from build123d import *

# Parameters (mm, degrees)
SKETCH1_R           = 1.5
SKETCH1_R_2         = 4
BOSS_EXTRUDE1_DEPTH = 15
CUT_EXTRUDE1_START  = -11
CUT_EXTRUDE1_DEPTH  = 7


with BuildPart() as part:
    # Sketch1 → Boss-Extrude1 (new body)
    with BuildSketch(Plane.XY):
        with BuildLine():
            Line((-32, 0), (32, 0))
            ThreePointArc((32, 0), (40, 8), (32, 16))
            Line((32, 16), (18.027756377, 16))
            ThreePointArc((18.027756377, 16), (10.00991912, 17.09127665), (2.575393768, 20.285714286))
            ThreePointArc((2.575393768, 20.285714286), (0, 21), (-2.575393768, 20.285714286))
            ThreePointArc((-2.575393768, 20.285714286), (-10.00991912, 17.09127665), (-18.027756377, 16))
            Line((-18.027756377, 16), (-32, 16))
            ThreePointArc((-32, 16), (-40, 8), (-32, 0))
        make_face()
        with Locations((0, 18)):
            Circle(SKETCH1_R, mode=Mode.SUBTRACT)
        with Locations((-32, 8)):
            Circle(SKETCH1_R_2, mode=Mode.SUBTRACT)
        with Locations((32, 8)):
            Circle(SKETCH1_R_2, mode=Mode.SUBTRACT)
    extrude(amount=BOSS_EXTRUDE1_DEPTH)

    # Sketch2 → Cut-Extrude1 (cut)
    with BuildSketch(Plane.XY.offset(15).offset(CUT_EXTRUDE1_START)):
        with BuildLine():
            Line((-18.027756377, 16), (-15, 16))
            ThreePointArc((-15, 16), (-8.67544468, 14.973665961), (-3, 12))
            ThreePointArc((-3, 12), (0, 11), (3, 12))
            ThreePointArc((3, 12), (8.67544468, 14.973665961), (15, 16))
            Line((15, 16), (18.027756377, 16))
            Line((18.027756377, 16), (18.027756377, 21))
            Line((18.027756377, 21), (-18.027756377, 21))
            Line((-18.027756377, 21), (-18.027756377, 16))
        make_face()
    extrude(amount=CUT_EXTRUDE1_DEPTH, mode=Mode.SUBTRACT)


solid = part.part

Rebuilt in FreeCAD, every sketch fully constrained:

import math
import FreeCAD as App
import Part
import Sketcher
from FreeCAD import Vector

doc = App.newDocument("Part")
body = doc.addObject("PartDesign::Body", "Body")

sketch1 = body.newObject("Sketcher::SketchObject", "Sketch")
sketch1.AttachmentSupport = (doc.getObject("XY_Plane"), [""])
sketch1.MapMode = "FlatFace"
sketch1.addGeometry([
    Part.LineSegment(Vector(-32, 0, 0), Vector(32, 0, 0)),
    Part.ArcOfCircle(Part.Circle(Vector(32, 8, 0), Vector(0, 0, 1), 8), math.radians(-90), math.radians(90)),
    Part.LineSegment(Vector(32, 16, 0), Vector(18.027756, 16, 0)),
    Part.ArcOfCircle(Part.Circle(Vector(18.027756, 46, 0), Vector(0, 0, 1), 30), math.radians(-121.002719), math.radians(-90)),
    Part.ArcOfCircle(Part.Circle(Vector(0, 16, 0), Vector(0, 0, 1), 5), math.radians(58.997281), math.radians(121.002719)),
    Part.ArcOfCircle(Part.Circle(Vector(-18.027756, 46, 0), Vector(0, 0, 1), 30), math.radians(-90), math.radians(-58.997281)),
    Part.LineSegment(Vector(-18.027756, 16, 0), Vector(-32, 16, 0)),
    Part.ArcOfCircle(Part.Circle(Vector(-32, 8, 0), Vector(0, 0, 1), 8), math.radians(90), math.radians(270)),
    Part.Circle(Vector(-32, 8, 0), Vector(0, 0, 1), 4),
    Part.Circle(Vector(32, 8, 0), Vector(0, 0, 1), 4),
    Part.Circle(Vector(0, 18, 0), Vector(0, 0, 1), 1.5),
], False)
sketch1.addConstraint([
    Sketcher.Constraint("Tangent", 0, 2, 1, 1),
    Sketcher.Constraint("Tangent", 1, 2, 2, 1),
    Sketcher.Constraint("Tangent", 2, 2, 3, 2),
    Sketcher.Constraint("Tangent", 3, 1, 4, 1),
    Sketcher.Constraint("Tangent", 4, 2, 5, 2),
    Sketcher.Constraint("Tangent", 5, 1, 6, 1),
    Sketcher.Constraint("Tangent", 6, 2, 7, 1),
    Sketcher.Constraint("Tangent", 7, 2, 0, 1),
    Sketcher.Constraint("Horizontal", 0),
    Sketcher.Constraint("Horizontal", 2),
    Sketcher.Constraint("Horizontal", 6),
    Sketcher.Constraint("Coincident", 8, 3, 7, 3),
    Sketcher.Constraint("Coincident", 9, 3, 1, 3),
    Sketcher.Constraint("Equal", 3, 5),
    Sketcher.Constraint("Equal", 1, 7),
    Sketcher.Constraint("Equal", 8, 9),
    Sketcher.Constraint("Symmetric", 0, 2, 7, 2, -1, 1),
    Sketcher.Constraint("PointOnObject", 4, 3, -2),
    Sketcher.Constraint("PointOnObject", 10, 3, -2),
    Sketcher.Constraint("Horizontal", 4, 3, 1, 2),
    Sketcher.Constraint("Diameter", 8, 8.0),
    Sketcher.Constraint("Diameter", 10, 3.0),
    Sketcher.Constraint("Radius", 1, 8.0),
    Sketcher.Constraint("Radius", 3, 30.0),
    Sketcher.Constraint("Radius", 4, 5.0),
    Sketcher.Constraint("DistanceX", 0, 1, 0, 2, 64.0),
    Sketcher.Constraint("DistanceY", -1, 1, 10, 3, 18.0),
])
pad1 = body.newObject("PartDesign::Pad", "Pad")
pad1.Profile = sketch1
pad1.Length = 15

sketch2 = body.newObject("Sketcher::SketchObject", "Sketch001")
sketch2.AttachmentSupport = (doc.getObject("XY_Plane"), [""])
sketch2.MapMode = "FlatFace"
sketch2.AttachmentOffset = App.Placement(Vector(0, 0, 4), App.Rotation())
sketch2.addGeometry([
    Part.LineSegment(Vector(-18.027756, 16, 0), Vector(-15, 16, 0)),
    Part.ArcOfCircle(Part.Circle(Vector(-15, -4, 0), Vector(0, 0, 1), 20), math.radians(53.130102), math.radians(90)),
    Part.ArcOfCircle(Part.Circle(Vector(0, 16, 0), Vector(0, 0, 1), 5), math.radians(-126.869898), math.radians(-53.130102)),
    Part.ArcOfCircle(Part.Circle(Vector(15, -4, 0), Vector(0, 0, 1), 20), math.radians(90), math.radians(126.869898)),
    Part.LineSegment(Vector(15, 16, 0), Vector(18.027756, 16, 0)),
    Part.LineSegment(Vector(18.027756, 16, 0), Vector(18.027756, 21, 0)),
    Part.LineSegment(Vector(18.027756, 21, 0), Vector(-18.027756, 21, 0)),
    Part.LineSegment(Vector(-18.027756, 21, 0), Vector(-18.027756, 16, 0)),
], False)
sketch2.addConstraint([
    Sketcher.Constraint("Tangent", 0, 2, 1, 2),
    Sketcher.Constraint("Tangent", 1, 1, 2, 1),
    Sketcher.Constraint("Tangent", 2, 2, 3, 2),
    Sketcher.Constraint("Tangent", 3, 1, 4, 1),
    Sketcher.Constraint("Coincident", 4, 2, 5, 1),
    Sketcher.Constraint("Coincident", 5, 2, 6, 1),
    Sketcher.Constraint("Coincident", 6, 2, 7, 1),
    Sketcher.Constraint("Coincident", 7, 2, 0, 1),
    Sketcher.Constraint("Horizontal", 0),
    Sketcher.Constraint("Horizontal", 4),
    Sketcher.Constraint("Vertical", 5),
    Sketcher.Constraint("Horizontal", 6),
    Sketcher.Constraint("Vertical", 7),
    Sketcher.Constraint("Equal", 1, 3),
    Sketcher.Constraint("Symmetric", 1, 3, 3, 3, -2),
    Sketcher.Constraint("Horizontal", 2, 3, 0, 2),
    Sketcher.Constraint("Equal", 0, 4),
    Sketcher.Constraint("Radius", 1, 20.0),
    Sketcher.Constraint("Radius", 2, 5.0),
    Sketcher.Constraint("DistanceY", 5, 1, 5, 2, 5.0),
    Sketcher.Constraint("DistanceY", 1, 3, -1, 1, 4.0),
    Sketcher.Constraint("DistanceX", 0, 1, 0, 2, 3.027756),
])
pocket1 = body.newObject("PartDesign::Pocket", "Pocket")
pocket1.Profile = sketch2
pocket1.Length = 7
pocket1.Reversed = True

doc.recompute()
